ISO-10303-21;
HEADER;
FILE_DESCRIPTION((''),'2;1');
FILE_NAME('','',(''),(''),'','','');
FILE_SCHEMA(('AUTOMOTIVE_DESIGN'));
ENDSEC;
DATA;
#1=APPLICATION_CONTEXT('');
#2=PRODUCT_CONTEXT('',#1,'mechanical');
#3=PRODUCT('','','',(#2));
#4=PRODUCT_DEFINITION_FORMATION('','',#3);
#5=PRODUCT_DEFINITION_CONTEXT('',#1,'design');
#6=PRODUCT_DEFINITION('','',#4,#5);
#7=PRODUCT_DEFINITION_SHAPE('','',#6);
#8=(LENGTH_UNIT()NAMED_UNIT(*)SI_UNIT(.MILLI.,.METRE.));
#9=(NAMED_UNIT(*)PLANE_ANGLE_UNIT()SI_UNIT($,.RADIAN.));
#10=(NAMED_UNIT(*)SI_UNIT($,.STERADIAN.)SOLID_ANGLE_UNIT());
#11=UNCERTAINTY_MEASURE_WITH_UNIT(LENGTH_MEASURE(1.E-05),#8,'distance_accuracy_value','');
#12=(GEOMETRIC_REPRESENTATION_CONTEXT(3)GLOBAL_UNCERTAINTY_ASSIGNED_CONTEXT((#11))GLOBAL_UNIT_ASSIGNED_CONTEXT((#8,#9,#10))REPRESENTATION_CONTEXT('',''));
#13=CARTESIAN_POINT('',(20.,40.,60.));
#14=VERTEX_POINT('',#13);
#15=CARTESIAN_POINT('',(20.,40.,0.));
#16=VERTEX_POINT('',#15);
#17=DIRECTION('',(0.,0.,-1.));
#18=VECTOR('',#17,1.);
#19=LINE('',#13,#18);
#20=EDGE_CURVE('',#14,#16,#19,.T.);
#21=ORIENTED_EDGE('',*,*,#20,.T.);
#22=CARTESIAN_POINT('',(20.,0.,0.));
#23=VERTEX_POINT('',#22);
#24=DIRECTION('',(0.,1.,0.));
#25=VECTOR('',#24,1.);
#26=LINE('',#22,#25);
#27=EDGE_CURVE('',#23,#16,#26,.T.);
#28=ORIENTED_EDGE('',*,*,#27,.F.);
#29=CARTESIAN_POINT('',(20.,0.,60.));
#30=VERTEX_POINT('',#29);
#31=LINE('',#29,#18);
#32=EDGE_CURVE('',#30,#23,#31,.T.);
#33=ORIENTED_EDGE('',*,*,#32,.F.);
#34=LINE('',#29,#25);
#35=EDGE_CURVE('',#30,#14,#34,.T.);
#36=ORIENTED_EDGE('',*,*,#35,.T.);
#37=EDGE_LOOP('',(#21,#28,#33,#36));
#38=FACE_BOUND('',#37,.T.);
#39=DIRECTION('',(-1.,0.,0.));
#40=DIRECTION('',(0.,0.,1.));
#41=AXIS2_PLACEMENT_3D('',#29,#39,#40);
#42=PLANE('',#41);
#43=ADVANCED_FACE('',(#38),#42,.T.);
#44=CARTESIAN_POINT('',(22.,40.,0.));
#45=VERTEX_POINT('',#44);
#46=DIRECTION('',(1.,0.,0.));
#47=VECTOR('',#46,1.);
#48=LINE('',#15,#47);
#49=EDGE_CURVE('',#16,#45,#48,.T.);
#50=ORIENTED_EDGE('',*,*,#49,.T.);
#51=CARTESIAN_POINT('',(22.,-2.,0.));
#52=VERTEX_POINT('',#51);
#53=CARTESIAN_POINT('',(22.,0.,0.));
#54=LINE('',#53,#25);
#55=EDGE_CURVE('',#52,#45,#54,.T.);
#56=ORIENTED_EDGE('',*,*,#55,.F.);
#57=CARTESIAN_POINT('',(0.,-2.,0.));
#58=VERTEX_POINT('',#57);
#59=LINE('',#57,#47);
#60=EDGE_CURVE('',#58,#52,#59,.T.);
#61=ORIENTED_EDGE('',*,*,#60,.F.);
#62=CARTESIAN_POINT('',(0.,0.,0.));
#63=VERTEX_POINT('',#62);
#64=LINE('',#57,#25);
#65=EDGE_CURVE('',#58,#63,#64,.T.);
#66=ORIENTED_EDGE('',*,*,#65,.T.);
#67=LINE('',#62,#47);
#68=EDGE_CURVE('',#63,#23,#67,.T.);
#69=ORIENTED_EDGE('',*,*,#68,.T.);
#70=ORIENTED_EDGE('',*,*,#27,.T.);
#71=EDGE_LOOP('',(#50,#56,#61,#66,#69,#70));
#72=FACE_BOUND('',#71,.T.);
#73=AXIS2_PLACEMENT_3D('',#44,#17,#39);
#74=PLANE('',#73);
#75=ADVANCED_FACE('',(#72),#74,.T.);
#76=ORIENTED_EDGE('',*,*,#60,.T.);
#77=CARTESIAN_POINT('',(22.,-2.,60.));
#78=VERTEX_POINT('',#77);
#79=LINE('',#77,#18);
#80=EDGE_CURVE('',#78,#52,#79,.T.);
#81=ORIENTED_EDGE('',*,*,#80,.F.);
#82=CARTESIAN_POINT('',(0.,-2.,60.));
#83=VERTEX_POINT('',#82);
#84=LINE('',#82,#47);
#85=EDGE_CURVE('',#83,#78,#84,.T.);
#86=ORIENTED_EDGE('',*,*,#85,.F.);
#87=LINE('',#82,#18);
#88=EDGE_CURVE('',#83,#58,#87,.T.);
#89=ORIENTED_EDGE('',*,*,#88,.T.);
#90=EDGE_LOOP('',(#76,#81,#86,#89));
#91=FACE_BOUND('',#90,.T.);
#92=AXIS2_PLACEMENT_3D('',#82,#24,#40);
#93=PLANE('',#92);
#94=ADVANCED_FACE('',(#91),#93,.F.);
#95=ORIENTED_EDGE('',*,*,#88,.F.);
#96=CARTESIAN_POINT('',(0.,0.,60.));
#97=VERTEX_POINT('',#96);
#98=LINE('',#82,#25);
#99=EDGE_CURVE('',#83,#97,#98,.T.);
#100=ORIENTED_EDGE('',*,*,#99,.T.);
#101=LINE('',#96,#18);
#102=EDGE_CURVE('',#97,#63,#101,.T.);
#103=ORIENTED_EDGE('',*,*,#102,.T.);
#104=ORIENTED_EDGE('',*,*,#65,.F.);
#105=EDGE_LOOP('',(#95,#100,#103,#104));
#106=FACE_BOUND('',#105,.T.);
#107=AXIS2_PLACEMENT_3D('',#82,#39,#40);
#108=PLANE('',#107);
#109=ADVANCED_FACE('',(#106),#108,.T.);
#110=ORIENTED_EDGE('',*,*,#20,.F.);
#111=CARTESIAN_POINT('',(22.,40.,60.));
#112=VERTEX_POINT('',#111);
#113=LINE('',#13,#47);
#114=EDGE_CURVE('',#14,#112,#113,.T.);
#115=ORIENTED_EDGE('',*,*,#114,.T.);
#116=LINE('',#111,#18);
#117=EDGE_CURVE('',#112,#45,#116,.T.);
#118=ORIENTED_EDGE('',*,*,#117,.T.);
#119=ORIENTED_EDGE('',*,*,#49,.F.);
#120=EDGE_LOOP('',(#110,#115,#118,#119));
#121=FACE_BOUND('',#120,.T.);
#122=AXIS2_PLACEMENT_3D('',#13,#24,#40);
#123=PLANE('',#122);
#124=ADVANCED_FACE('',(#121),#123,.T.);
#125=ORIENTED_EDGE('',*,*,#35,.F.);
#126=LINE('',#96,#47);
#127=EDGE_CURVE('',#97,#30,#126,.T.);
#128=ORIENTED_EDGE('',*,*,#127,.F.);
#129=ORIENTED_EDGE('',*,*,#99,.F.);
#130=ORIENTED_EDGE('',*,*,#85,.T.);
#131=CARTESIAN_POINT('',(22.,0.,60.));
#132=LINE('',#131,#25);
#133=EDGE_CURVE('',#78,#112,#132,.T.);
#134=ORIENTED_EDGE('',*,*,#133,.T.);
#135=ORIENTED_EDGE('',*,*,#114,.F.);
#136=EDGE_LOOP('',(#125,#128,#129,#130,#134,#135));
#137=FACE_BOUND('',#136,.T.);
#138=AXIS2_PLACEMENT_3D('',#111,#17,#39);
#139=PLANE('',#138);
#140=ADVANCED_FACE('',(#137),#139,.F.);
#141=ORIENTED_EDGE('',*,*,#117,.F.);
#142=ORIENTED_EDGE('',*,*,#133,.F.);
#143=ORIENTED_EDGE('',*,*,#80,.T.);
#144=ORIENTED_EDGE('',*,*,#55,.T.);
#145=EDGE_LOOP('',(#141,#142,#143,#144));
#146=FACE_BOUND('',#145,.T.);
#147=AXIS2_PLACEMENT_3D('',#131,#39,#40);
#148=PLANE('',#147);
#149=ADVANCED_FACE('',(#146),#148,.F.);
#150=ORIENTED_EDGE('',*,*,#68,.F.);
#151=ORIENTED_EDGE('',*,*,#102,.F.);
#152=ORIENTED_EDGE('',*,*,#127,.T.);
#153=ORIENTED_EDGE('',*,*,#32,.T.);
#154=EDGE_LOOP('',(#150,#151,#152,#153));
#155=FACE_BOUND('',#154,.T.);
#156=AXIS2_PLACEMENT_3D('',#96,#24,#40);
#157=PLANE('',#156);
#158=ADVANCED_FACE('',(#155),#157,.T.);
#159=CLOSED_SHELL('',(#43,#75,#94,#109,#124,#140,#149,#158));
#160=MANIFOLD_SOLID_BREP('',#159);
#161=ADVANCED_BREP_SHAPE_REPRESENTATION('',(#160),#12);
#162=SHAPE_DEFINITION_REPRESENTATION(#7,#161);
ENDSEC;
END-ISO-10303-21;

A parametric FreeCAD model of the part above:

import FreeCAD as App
import Part
import Sketcher

V = App.Vector


def add_polygon(sketch, points):
    """Adds a closed chain of lines whose ends are joined by coincident constraints."""
    first, n = sketch.GeometryCount, len(points)
    for a, b in zip(points, points[1:] + points[:1]):
        sketch.addGeometry(Part.LineSegment(App.Vector(*a, 0), App.Vector(*b, 0)), False)
    for i in range(n):
        sketch.addConstraint(Sketcher.Constraint("Coincident", first + i, 2, first + (i + 1) % n, 1))

doc = App.newDocument("Part")
body = doc.addObject("PartDesign::Body", "Body")

sketch1 = body.newObject("Sketcher::SketchObject", "Sketch")
sketch1.AttachmentSupport = (doc.getObject("XY_Plane"), [""])
sketch1.MapMode = "FlatFace"
add_polygon(sketch1, [(20, 0), (0, 0), (0, -2), (22, -2), (22, 40), (20, 40)])
sketch1.addConstraint([
    Sketcher.Constraint("Horizontal", 0),
    Sketcher.Constraint("Vertical", 1),
    Sketcher.Constraint("Horizontal", 2),
    Sketcher.Constraint("Vertical", 3),
    Sketcher.Constraint("Horizontal", 4),
    Sketcher.Constraint("Vertical", 5),
    Sketcher.Constraint("Coincident", 0, 2, -1, 1),
    Sketcher.Constraint("Equal", 4, 1),
    Sketcher.Constraint("DistanceX", 0, 2, 0, 1, 20.0),
    Sketcher.Constraint("DistanceX", 2, 1, 2, 2, 22.0),
    Sketcher.Constraint("DistanceY", 3, 1, 3, 2, 42.0),
])
pad1 = body.newObject("PartDesign::Pad", "Pad")
pad1.Profile = sketch1
pad1.Length = 60

doc.recompute()
